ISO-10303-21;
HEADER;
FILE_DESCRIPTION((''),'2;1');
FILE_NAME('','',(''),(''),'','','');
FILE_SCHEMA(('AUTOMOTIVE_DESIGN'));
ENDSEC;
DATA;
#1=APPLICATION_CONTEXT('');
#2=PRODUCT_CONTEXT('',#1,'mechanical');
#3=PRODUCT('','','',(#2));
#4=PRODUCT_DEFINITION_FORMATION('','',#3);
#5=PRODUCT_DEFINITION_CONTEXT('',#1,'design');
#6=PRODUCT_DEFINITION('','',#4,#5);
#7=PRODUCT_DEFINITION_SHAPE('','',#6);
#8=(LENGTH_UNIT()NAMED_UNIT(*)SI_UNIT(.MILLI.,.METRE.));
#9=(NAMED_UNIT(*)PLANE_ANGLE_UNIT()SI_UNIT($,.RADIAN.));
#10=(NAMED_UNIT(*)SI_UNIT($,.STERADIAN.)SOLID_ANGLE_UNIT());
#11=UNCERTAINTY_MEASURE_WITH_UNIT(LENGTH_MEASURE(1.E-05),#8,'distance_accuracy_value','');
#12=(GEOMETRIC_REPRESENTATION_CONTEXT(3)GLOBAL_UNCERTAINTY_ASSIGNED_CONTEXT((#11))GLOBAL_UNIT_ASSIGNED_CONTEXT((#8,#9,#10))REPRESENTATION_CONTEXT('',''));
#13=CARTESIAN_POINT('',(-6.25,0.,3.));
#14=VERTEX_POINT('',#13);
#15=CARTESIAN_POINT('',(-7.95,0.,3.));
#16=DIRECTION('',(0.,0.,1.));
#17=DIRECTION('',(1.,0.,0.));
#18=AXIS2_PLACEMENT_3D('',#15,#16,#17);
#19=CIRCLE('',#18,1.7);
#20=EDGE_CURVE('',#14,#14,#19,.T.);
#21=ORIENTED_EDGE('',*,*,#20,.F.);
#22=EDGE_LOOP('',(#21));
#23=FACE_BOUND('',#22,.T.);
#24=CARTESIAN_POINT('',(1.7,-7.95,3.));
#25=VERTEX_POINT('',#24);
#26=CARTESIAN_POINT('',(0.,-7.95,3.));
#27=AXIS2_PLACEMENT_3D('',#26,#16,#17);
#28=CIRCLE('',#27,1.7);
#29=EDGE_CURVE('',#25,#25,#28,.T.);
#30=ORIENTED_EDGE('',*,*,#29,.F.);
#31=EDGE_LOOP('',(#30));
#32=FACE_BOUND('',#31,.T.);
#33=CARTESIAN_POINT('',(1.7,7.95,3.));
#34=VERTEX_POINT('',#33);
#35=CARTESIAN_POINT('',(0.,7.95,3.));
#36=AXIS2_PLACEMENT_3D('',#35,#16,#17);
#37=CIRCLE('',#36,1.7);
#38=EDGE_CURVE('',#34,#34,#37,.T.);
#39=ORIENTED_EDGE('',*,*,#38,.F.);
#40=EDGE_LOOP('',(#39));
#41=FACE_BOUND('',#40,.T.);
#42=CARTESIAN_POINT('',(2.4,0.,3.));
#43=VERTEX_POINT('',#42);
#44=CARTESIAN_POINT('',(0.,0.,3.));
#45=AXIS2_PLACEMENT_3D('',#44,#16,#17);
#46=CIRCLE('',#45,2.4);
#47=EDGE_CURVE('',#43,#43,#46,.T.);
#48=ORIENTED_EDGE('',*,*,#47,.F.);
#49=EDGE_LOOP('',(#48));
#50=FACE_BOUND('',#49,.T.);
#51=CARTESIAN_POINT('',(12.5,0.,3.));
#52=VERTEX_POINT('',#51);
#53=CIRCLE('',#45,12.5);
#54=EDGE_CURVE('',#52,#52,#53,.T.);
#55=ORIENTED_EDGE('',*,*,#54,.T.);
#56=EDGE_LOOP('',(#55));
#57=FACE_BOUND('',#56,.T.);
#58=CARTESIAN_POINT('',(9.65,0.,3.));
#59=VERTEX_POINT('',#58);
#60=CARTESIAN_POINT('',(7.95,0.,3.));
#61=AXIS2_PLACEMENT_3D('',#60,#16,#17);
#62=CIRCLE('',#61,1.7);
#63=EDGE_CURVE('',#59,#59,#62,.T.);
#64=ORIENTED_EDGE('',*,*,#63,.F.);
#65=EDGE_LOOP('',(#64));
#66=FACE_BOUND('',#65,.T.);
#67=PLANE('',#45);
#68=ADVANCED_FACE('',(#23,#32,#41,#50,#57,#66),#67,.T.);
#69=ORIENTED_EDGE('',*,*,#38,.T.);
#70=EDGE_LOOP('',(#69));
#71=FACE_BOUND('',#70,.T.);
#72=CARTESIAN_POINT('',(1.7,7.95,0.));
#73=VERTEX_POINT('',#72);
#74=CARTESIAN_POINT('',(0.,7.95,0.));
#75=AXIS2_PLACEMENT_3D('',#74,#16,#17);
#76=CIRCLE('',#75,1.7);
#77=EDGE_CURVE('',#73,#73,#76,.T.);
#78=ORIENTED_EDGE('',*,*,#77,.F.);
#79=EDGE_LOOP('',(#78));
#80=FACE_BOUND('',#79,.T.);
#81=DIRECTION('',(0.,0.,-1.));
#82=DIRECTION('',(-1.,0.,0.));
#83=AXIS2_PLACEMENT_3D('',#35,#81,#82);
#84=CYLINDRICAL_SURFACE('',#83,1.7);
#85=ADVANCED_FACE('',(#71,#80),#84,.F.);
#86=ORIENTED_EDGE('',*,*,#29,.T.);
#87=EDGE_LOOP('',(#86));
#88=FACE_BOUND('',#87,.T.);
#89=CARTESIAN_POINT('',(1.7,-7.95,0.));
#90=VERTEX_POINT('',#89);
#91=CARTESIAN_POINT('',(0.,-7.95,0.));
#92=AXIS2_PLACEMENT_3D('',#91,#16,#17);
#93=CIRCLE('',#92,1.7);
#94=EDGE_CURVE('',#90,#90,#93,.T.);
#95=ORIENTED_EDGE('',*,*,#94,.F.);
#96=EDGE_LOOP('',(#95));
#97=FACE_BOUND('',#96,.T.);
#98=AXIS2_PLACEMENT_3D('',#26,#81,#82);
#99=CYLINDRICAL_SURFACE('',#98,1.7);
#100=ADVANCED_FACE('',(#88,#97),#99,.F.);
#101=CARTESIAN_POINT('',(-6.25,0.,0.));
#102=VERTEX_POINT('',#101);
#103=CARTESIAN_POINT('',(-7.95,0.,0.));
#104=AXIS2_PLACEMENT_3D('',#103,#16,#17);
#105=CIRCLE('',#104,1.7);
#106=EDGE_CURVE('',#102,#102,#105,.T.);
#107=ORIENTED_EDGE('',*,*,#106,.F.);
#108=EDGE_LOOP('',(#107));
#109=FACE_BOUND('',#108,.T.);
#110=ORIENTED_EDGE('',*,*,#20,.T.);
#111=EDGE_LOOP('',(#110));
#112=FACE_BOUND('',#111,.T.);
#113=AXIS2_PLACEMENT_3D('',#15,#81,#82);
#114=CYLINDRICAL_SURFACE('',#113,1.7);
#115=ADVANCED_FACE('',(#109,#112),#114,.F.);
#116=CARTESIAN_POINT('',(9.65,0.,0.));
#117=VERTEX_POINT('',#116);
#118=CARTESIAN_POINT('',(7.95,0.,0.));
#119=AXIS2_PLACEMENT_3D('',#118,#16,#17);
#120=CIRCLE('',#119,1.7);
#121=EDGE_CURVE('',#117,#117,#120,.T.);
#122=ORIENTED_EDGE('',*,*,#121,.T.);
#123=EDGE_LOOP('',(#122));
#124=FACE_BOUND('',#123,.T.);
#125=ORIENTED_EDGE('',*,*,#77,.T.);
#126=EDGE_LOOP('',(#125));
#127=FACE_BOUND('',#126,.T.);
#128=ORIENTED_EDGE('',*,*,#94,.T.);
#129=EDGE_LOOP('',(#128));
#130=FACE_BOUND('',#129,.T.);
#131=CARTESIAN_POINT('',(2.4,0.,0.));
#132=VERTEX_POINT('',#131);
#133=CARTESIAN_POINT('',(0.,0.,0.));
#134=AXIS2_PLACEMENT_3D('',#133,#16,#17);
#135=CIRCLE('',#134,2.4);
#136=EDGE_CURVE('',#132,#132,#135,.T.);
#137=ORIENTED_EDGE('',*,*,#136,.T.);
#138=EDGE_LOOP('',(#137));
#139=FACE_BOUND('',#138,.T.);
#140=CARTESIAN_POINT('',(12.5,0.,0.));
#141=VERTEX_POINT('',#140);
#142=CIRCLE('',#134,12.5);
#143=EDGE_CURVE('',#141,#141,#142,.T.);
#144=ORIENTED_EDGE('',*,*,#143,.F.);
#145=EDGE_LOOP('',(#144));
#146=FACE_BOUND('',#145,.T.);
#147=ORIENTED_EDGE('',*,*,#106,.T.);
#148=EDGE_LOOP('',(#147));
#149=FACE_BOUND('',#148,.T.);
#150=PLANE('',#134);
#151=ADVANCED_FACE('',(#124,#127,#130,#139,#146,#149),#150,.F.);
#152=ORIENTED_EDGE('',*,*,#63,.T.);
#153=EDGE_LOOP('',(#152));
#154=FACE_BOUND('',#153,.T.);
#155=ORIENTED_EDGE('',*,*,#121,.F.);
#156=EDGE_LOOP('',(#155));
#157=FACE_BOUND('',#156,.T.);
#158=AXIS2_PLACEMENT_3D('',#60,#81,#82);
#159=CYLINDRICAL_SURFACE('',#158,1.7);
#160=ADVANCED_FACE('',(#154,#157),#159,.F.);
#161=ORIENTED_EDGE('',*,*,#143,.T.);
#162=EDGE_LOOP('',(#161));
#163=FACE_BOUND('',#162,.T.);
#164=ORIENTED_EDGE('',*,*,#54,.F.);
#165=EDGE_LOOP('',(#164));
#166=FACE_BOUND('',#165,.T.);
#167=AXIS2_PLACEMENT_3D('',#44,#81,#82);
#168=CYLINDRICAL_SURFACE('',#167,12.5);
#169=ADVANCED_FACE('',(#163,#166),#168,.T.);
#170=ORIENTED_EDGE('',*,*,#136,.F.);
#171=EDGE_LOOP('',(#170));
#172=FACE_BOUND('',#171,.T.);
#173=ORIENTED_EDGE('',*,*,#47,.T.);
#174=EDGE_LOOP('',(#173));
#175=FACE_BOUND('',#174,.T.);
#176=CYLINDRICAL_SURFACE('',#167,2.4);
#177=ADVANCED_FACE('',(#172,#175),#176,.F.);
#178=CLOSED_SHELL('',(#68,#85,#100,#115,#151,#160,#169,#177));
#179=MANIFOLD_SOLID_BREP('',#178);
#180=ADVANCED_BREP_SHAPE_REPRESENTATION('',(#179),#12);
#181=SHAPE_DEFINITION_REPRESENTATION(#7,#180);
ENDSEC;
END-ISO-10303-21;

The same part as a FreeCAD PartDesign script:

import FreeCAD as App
import Part
import Sketcher
from FreeCAD import Vector

doc = App.newDocument("Part")
body = doc.addObject("PartDesign::Body", "Body")

# Sketch on XY plane
sketch1 = body.newObject("Sketcher::SketchObject", "Sketch")
sketch1.AttachmentSupport = (doc.getObject("XY_Plane"), [""])
sketch1.MapMode = "FlatFace"
sketch1.addGeometry([
    Part.Circle(Vector(0, 0, 0), Vector(0, 0, 1), 12.5),  # 0
    Part.Circle(Vector(0, -8, 0), Vector(0, 0, 1), 1.7),  # 1
    Part.Circle(Vector(-8, 0, 0), Vector(0, 0, 1), 1.7),  # 2
    Part.Circle(Vector(0, 0, 0), Vector(0, 0, 1), 2.4),  # 3
    Part.Circle(Vector(8, 0, 0), Vector(0, 0, 1), 1.7),  # 4
    Part.Circle(Vector(0, 8, 0), Vector(0, 0, 1), 1.7),  # 5
], False)
sketch1.addConstraint([
    Sketcher.Constraint("Coincident", 0, 3, -1, 1),
    Sketcher.Constraint("Coincident", 3, 3, -1, 1),
    Sketcher.Constraint("Equal", 1, 2),
    Sketcher.Constraint("Equal", 2, 4),
    Sketcher.Constraint("Equal", 4, 5),
    Sketcher.Constraint("Symmetric", 2, 3, 4, 3, -1, 1),
    Sketcher.Constraint("Symmetric", 1, 3, 5, 3, -1, 1),
    Sketcher.Constraint("PointOnObject", 1, 3, -2),
    Sketcher.Constraint("PointOnObject", 2, 3, -1),
    Sketcher.Constraint("Diameter", 0, 25.0),
    Sketcher.Constraint("Diameter", 1, 3.4),
    Sketcher.Constraint("Diameter", 3, 4.8),
    Sketcher.Constraint("DistanceX", 2, 3, 4, 3, 15.9),
    Sketcher.Constraint("DistanceY", 1, 3, 5, 3, 15.9),
])
pad1 = body.newObject("PartDesign::Pad", "Pad")
pad1.Profile = sketch1
pad1.Length = 3

doc.recompute()
